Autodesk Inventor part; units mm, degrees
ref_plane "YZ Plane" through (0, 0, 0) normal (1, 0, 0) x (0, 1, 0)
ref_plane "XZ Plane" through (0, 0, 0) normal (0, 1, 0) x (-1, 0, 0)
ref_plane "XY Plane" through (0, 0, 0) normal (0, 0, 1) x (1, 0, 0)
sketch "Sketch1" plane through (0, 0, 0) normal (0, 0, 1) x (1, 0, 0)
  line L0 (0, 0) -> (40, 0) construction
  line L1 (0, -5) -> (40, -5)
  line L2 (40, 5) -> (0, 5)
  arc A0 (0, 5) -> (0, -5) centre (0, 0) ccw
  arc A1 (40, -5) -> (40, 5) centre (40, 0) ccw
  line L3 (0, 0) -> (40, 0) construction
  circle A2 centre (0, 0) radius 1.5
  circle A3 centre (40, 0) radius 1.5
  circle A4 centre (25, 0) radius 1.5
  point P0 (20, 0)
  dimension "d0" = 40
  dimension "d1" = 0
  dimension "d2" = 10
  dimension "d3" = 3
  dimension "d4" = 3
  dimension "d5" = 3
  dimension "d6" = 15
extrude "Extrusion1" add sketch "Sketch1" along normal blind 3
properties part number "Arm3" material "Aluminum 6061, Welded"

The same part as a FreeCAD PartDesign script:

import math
import FreeCAD as App
import Part
import Sketcher
from FreeCAD import Vector
Q = App.Units.Quantity

doc = App.newDocument("Part")
body = doc.addObject("PartDesign::Body", "Body")

# Sketch on XY plane
sketch1 = body.newObject("Sketcher::SketchObject", "Sketch")
sketch1.AttachmentSupport = (doc.getObject("XY_Plane"), [""])
sketch1.MapMode = "FlatFace"
sketch1.addGeometry([
    Part.ArcOfCircle(Part.Circle(Vector(0, 0, 0), Vector(0, 0, 1), 5), math.radians(90), math.radians(270)),  # 0
    Part.LineSegment(Vector(0, -5, 0), Vector(40, -5, 0)),  # 1
    Part.ArcOfCircle(Part.Circle(Vector(40, 0, 0), Vector(0, 0, 1), 5), math.radians(-90), math.radians(90)),  # 2
    Part.LineSegment(Vector(40, 5, 0), Vector(0, 5, 0)),  # 3
    Part.Circle(Vector(0, 0, 0), Vector(0, 0, 1), 1.5),  # 4
    Part.Circle(Vector(25, 0, 0), Vector(0, 0, 1), 1.5),  # 5
    Part.Circle(Vector(40, 0, 0), Vector(0, 0, 1), 1.5),  # 6
], False)
sketch1.addConstraint([
    Sketcher.Constraint("Tangent", 0, 2, 1, 1),
    Sketcher.Constraint("Tangent", 1, 2, 2, 1),
    Sketcher.Constraint("Tangent", 2, 2, 3, 1),
    Sketcher.Constraint("Tangent", 3, 2, 0, 1),
    Sketcher.Constraint("Horizontal", 1),
    Sketcher.Constraint("Horizontal", 3),
    Sketcher.Constraint("Coincident", 0, 3, -1, 1),
    Sketcher.Constraint("Coincident", 4, 3, -1, 1),
    Sketcher.Constraint("Coincident", 6, 3, 2, 3),
    Sketcher.Constraint("Equal", 4, 5),
    Sketcher.Constraint("Equal", 5, 6),
    Sketcher.Constraint("PointOnObject", 5, 3, -1),
    Sketcher.Constraint("Diameter", 4, Q("3 mm")),
    Sketcher.Constraint("Radius", 0, Q("5 mm")),
    Sketcher.Constraint("DistanceX", 1, 1, 1, 2, Q("40 mm")),
    Sketcher.Constraint("DistanceX", 5, 3, 2, 3, Q("15 mm")),
])
pad1 = body.newObject("PartDesign::Pad", "Pad")
pad1.Profile = sketch1
pad1.Length = 3

doc.recompute()
